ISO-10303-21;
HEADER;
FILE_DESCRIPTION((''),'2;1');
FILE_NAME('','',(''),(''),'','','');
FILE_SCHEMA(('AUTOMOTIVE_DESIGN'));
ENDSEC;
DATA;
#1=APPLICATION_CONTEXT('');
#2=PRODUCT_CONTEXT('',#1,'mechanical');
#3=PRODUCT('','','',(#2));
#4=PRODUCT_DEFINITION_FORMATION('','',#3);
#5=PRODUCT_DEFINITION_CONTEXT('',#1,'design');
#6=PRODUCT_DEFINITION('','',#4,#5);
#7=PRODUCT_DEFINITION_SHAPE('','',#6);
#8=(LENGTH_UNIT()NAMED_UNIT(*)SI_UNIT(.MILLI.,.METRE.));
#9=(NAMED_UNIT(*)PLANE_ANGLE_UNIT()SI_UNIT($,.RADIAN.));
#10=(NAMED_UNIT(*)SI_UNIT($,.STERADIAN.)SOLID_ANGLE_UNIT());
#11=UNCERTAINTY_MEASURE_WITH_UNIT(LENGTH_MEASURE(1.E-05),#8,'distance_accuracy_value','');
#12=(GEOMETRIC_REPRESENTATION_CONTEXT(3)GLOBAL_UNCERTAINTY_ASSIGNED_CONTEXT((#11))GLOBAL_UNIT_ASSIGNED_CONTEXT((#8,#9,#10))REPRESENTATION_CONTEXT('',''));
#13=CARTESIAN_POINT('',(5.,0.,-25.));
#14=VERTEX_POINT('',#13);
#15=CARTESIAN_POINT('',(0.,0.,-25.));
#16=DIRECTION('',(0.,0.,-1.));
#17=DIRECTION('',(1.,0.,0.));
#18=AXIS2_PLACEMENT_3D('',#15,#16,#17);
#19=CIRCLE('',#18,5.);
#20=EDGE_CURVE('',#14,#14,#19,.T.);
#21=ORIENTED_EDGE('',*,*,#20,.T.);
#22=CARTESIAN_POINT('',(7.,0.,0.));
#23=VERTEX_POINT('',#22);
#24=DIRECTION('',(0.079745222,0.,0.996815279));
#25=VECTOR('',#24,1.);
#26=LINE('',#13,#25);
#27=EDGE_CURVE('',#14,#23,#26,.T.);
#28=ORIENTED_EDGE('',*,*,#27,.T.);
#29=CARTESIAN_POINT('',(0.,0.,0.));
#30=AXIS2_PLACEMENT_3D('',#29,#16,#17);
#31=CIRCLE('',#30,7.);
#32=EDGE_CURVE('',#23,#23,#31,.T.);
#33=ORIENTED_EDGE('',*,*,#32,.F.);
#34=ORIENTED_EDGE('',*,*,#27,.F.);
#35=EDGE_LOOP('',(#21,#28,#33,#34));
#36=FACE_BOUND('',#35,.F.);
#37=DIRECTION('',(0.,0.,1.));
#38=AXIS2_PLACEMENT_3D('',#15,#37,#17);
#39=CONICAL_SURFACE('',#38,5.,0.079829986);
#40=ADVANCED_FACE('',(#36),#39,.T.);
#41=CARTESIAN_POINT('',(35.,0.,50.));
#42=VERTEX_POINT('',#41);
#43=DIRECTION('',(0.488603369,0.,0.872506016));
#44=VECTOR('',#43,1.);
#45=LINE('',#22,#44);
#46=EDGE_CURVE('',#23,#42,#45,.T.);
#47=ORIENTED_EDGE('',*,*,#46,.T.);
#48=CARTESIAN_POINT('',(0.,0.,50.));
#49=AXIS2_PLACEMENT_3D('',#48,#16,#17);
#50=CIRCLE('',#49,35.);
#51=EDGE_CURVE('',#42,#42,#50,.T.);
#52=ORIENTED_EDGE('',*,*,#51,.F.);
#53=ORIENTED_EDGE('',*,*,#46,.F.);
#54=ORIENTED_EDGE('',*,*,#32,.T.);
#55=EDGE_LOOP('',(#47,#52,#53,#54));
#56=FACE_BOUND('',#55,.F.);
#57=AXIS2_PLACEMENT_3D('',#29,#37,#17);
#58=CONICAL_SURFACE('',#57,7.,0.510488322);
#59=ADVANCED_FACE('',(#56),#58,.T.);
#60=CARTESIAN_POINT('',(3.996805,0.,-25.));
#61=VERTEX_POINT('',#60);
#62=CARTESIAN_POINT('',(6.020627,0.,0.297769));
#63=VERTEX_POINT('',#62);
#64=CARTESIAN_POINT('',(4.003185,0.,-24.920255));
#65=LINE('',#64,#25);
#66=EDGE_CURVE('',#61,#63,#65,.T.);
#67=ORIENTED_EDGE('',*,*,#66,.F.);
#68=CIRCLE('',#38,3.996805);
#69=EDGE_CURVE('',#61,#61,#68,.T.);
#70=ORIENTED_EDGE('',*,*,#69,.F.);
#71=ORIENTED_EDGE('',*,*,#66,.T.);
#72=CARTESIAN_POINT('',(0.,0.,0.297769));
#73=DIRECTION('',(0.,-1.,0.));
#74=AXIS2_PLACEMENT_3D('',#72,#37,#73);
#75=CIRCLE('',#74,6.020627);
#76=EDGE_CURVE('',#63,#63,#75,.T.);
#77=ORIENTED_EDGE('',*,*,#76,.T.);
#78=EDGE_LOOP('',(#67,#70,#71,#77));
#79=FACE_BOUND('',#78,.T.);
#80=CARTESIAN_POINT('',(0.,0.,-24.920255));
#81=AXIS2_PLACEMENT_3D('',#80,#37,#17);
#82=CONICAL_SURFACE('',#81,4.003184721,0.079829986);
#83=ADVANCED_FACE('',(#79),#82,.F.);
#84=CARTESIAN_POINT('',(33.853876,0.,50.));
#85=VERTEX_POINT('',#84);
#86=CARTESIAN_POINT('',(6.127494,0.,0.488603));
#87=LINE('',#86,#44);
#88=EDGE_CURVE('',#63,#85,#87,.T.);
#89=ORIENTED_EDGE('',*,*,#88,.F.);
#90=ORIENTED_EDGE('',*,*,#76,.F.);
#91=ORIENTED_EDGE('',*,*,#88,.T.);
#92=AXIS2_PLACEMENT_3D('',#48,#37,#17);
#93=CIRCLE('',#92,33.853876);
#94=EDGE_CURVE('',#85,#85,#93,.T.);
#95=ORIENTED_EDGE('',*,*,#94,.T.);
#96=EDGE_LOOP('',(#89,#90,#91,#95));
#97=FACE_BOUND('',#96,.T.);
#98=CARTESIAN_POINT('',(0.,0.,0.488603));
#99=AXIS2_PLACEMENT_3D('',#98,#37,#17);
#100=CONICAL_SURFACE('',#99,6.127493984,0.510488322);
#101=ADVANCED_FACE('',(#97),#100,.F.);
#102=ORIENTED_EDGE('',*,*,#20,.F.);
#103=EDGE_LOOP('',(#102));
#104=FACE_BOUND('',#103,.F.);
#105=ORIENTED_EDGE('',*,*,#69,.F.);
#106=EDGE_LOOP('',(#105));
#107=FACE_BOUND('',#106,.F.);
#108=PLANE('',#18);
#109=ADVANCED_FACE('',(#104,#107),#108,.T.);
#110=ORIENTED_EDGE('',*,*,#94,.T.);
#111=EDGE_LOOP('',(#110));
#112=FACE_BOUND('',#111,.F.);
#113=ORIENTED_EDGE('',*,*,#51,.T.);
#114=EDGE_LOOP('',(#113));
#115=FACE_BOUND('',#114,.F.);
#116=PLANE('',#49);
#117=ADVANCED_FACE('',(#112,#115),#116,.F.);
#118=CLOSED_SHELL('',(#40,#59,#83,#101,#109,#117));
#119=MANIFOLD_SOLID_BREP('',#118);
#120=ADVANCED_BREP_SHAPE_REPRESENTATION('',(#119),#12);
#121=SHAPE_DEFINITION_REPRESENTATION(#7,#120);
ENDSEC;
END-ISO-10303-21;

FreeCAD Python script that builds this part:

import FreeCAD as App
import Part
import Sketcher

V = App.Vector


def faces_at(feature, points):
    """Names of the faces that lie closest to the given points."""
    faces = feature.Shape.Faces
    near = lambda p: min(range(len(faces)), key=lambda i: faces[i].distToShape(Part.Vertex(*p))[0])
    return sorted({f"Face{near(p) + 1}" for p in points})

doc = App.newDocument("Part")
params = doc.addObject("Spreadsheet::Sheet", "Params")
for row, (alias, value) in enumerate([
    ("sketch1_width", "5 mm"),
    ("sketch1_width2", "35 mm"),
    ("sketch1_height", "75 mm"),
    ("revolution_angle", "360 deg"),
    ("thickness_wall", "1 mm"),
], start=1):
    params.set(f"A{row}", alias)
    params.set(f"B{row}", "=" + value)
    params.setAlias(f"B{row}", alias)

body = doc.addObject("PartDesign::Body", "Body")

sketch1 = body.newObject("Sketcher::SketchObject", "Sketch")
sketch1.AttachmentSupport = (doc.getObject("XZ_Plane"), [""])
sketch1.MapMode = "FlatFace"
sketch1.addGeometry([
    Part.LineSegment(V(0, 50, 0), V(0, -25, 0)),
    Part.LineSegment(V(0, -25, 0), V(5, -25, 0)),
    Part.LineSegment(V(5, -25, 0), V(7, 0, 0)),
    Part.LineSegment(V(7, 0, 0), V(35, 50, 0)),
    Part.LineSegment(V(35, 50, 0), V(0, 50, 0)),
], False)
sketch1.addConstraint([
    Sketcher.Constraint("Coincident", 0, 2, 1, 1),
    Sketcher.Constraint("Coincident", 1, 2, 2, 1),
    Sketcher.Constraint("Coincident", 2, 2, 3, 1),
    Sketcher.Constraint("Coincident", 3, 2, 4, 1),
    Sketcher.Constraint("Coincident", 4, 2, 0, 1),
    Sketcher.Constraint("Vertical", 0),
    Sketcher.Constraint("Horizontal", 1),
    Sketcher.Constraint("Horizontal", 4),
    Sketcher.Constraint("PointOnObject", 0, 2, -2),
    Sketcher.Constraint("PointOnObject", 2, 2, -1),
    Sketcher.Constraint("DistanceX", 1, 1, 1, 2, 5.0),
    Sketcher.Constraint("DistanceX", 4, 2, 4, 1, 35.0),
    Sketcher.Constraint("DistanceY", 0, 2, 0, 1, 75.0),
    Sketcher.Constraint("DistanceY", 0, 2, -1, 1, 25.0),
    Sketcher.Constraint("DistanceX", -1, 1, 2, 2, 7.0),
])
sketch1.setExpression("Constraints[10]", "Params.sketch1_width")
sketch1.setExpression("Constraints[11]", "Params.sketch1_width2")
sketch1.setExpression("Constraints[12]", "Params.sketch1_height")
revolution = body.newObject("PartDesign::Revolution", "Revolution")
revolution.Profile = sketch1
revolution.ReferenceAxis = (sketch1, ["V_Axis"])
revolution.setExpression("Angle", "Params.revolution_angle")
doc.recompute()

thickness = body.newObject("PartDesign::Thickness", "Thickness")
thickness.Base = (revolution, faces_at(revolution, [(0, 0, 50), (0, 0, -25)]))
thickness.setExpression("Value", "Params.thickness_wall")
thickness.Reversed = True
thickness.Join = "Intersection"

doc.recompute()
